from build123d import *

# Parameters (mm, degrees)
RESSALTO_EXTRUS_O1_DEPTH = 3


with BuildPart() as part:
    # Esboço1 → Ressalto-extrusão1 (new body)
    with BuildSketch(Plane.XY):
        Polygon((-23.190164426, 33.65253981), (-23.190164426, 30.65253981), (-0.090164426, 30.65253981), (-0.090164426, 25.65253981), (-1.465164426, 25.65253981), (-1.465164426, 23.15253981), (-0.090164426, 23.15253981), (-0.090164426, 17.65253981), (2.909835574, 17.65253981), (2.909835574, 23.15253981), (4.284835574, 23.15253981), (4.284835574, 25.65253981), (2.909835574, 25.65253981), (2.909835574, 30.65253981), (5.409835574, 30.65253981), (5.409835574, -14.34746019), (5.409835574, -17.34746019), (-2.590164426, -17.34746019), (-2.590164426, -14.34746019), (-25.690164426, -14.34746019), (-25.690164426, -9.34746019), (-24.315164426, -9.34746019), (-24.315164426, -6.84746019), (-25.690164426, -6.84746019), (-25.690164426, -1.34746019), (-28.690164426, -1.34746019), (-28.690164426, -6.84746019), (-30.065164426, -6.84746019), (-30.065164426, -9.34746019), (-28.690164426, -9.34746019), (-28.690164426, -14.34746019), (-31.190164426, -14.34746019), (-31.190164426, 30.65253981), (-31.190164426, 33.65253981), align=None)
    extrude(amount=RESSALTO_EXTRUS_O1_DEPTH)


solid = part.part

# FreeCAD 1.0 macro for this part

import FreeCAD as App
import Part
import Sketcher
from FreeCAD import Vector

doc = App.newDocument("Part")
body = doc.addObject("PartDesign::Body", "Body")

# Sketch on XY plane
sketch1 = doc.addObject("Sketcher::SketchObject", "Sketch")
body.addObject(sketch1)
sketch1.AttachmentSupport = (doc.XY_Plane, [""])
sketch1.MapMode = "FlatFace"
sketch1.addGeometry([
    Part.LineSegment(Vector(-23.190164, 30.65254, 0), Vector(-23.190164, 33.65254, 0)),  # 0
    Part.LineSegment(Vector(-23.190164, 33.65254, 0), Vector(-31.190164, 33.65254, 0)),  # 1
    Part.LineSegment(Vector(-31.190164, 33.65254, 0), Vector(-31.190164, -14.34746, 0)),  # 2
    Part.LineSegment(Vector(-31.190164, -14.34746, 0), Vector(-28.690164, -14.34746, 0)),  # 3
    Part.LineSegment(Vector(-28.690164, -14.34746, 0), Vector(-28.690164, -9.34746, 0)),  # 4
    Part.LineSegment(Vector(-28.690164, -9.34746, 0), Vector(-30.065164, -9.34746, 0)),  # 5
    Part.LineSegment(Vector(-30.065164, -9.34746, 0), Vector(-30.065164, -6.84746, 0)),  # 6
    Part.LineSegment(Vector(-30.065164, -6.84746, 0), Vector(-28.690164, -6.84746, 0)),  # 7
    Part.LineSegment(Vector(-28.690164, -6.84746, 0), Vector(-28.690164, -1.34746, 0)),  # 8
    Part.LineSegment(Vector(-28.690164, -1.34746, 0), Vector(-25.690164, -1.34746, 0)),  # 9
    Part.LineSegment(Vector(-25.690164, -1.34746, 0), Vector(-25.690164, -6.84746, 0)),  # 10
    Part.LineSegment(Vector(-25.690164, -6.84746, 0), Vector(-24.315164, -6.84746, 0)),  # 11
    Part.LineSegment(Vector(-24.315164, -6.84746, 0), Vector(-24.315164, -9.34746, 0)),  # 12
    Part.LineSegment(Vector(-24.315164, -9.34746, 0), Vector(-25.690164, -9.34746, 0)),  # 13
    Part.LineSegment(Vector(-25.690164, -9.34746, 0), Vector(-25.690164, -14.34746, 0)),  # 14
    Part.LineSegment(Vector(-25.690164, -14.34746, 0), Vector(-2.590164, -14.34746, 0)),  # 15
    Part.LineSegment(Vector(-2.590164, -14.34746, 0), Vector(-2.590164, -17.34746, 0)),  # 16
    Part.LineSegment(Vector(-2.590164, -17.34746, 0), Vector(5.409836, -17.34746, 0)),  # 17
    Part.LineSegment(Vector(5.409836, -17.34746, 0), Vector(5.409836, 30.65254, 0)),  # 18
    Part.LineSegment(Vector(5.409836, 30.65254, 0), Vector(2.909836, 30.65254, 0)),  # 19
    Part.LineSegment(Vector(2.909836, 30.65254, 0), Vector(2.909836, 25.65254, 0)),  # 20
    Part.LineSegment(Vector(2.909836, 25.65254, 0), Vector(4.284836, 25.65254, 0)),  # 21
    Part.LineSegment(Vector(4.284836, 25.65254, 0), Vector(4.284836, 23.15254, 0)),  # 22
    Part.LineSegment(Vector(4.284836, 23.15254, 0), Vector(2.909836, 23.15254, 0)),  # 23
    Part.LineSegment(Vector(2.909836, 23.15254, 0), Vector(2.909836, 17.65254, 0)),  # 24
    Part.LineSegment(Vector(2.909836, 17.65254, 0), Vector(-0.090164, 17.65254, 0)),  # 25
    Part.LineSegment(Vector(-0.090164, 17.65254, 0), Vector(-0.090164, 23.15254, 0)),  # 26
    Part.LineSegment(Vector(-0.090164, 23.15254, 0), Vector(-1.465164, 23.15254, 0)),  # 27
    Part.LineSegment(Vector(-1.465164, 23.15254, 0), Vector(-1.465164, 25.65254, 0)),  # 28
    Part.LineSegment(Vector(-1.465164, 25.65254, 0), Vector(-0.090164, 25.65254, 0)),  # 29
    Part.LineSegment(Vector(-0.090164, 25.65254, 0), Vector(-0.090164, 30.65254, 0)),  # 30
    Part.LineSegment(Vector(-0.090164, 30.65254, 0), Vector(-23.190164, 30.65254, 0)),  # 31
], False)
sketch1.addConstraint([
    Sketcher.Constraint("Coincident", 0, 2, 1, 1),
    Sketcher.Constraint("Coincident", 1, 2, 2, 1),
    Sketcher.Constraint("Coincident", 2, 2, 3, 1),
    Sketcher.Constraint("Coincident", 3, 2, 4, 1),
    Sketcher.Constraint("Coincident", 4, 2, 5, 1),
    Sketcher.Constraint("Coincident", 5, 2, 6, 1),
    Sketcher.Constraint("Coincident", 6, 2, 7, 1),
    Sketcher.Constraint("Coincident", 7, 2, 8, 1),
    Sketcher.Constraint("Coincident", 8, 2, 9, 1),
    Sketcher.Constraint("Coincident", 9, 2, 10, 1),
    Sketcher.Constraint("Coincident", 10, 2, 11, 1),
    Sketcher.Constraint("Coincident", 11, 2, 12, 1),
    Sketcher.Constraint("Coincident", 12, 2, 13, 1),
    Sketcher.Constraint("Coincident", 13, 2, 14, 1),
    Sketcher.Constraint("Coincident", 14, 2, 15, 1),
    Sketcher.Constraint("Coincident", 15, 2, 16, 1),
    Sketcher.Constraint("Coincident", 16, 2, 17, 1),
    Sketcher.Constraint("Coincident", 17, 2, 18, 1),
    Sketcher.Constraint("Coincident", 18, 2, 19, 1),
    Sketcher.Constraint("Coincident", 19, 2, 20, 1),
    Sketcher.Constraint("Coincident", 20, 2, 21, 1),
    Sketcher.Constraint("Coincident", 21, 2, 22, 1),
    Sketcher.Constraint("Coincident", 22, 2, 23, 1),
    Sketcher.Constraint("Coincident", 23, 2, 24, 1),
    Sketcher.Constraint("Coincident", 24, 2, 25, 1),
    Sketcher.Constraint("Coincident", 25, 2, 26, 1),
    Sketcher.Constraint("Coincident", 26, 2, 27, 1),
    Sketcher.Constraint("Coincident", 27, 2, 28, 1),
    Sketcher.Constraint("Coincident", 28, 2, 29, 1),
    Sketcher.Constraint("Coincident", 29, 2, 30, 1),
    Sketcher.Constraint("Coincident", 30, 2, 31, 1),
    Sketcher.Constraint("Coincident", 31, 2, 0, 1),
    Sketcher.Constraint("Vertical", 0),
    Sketcher.Constraint("Horizontal", 1),
    Sketcher.Constraint("Vertical", 2),
    Sketcher.Constraint("Horizontal", 3),
    Sketcher.Constraint("Vertical", 4),
    Sketcher.Constraint("Horizontal", 5),
    Sketcher.Constraint("Vertical", 6),
    Sketcher.Constraint("Horizontal", 7),
    Sketcher.Constraint("Vertical", 8),
    Sketcher.Constraint("Horizontal", 9),
    Sketcher.Constraint("Vertical", 10),
    Sketcher.Constraint("Horizontal", 11),
    Sketcher.Constraint("Vertical", 12),
    Sketcher.Constraint("Horizontal", 13),
    Sketcher.Constraint("Vertical", 14),
    Sketcher.Constraint("Horizontal", 15),
    Sketcher.Constraint("Vertical", 16),
    Sketcher.Constraint("Horizontal", 17),
    Sketcher.Constraint("Vertical", 18),
    Sketcher.Constraint("Horizontal", 19),
    Sketcher.Constraint("Vertical", 20),
    Sketcher.Constraint("Horizontal", 21),
    Sketcher.Constraint("Vertical", 22),
    Sketcher.Constraint("Horizontal", 23),
    Sketcher.Constraint("Vertical", 24),
    Sketcher.Constraint("Horizontal", 25),
    Sketcher.Constraint("Vertical", 26),
    Sketcher.Constraint("Horizontal", 27),
    Sketcher.Constraint("Vertical", 28),
    Sketcher.Constraint("Horizontal", 29),
    Sketcher.Constraint("Vertical", 30),
    Sketcher.Constraint("Horizontal", 31),
    Sketcher.Constraint("Horizontal", 7, 2, 10, 2),
    Sketcher.Constraint("Horizontal", 5, 2, 12, 2),
    Sketcher.Constraint("Horizontal", 3, 2, 14, 2),
    Sketcher.Constraint("Horizontal", 23, 2, 26, 2),
    Sketcher.Constraint("Horizontal", 21, 2, 28, 2),
    Sketcher.Constraint("Horizontal", 19, 2, 30, 2),
    Sketcher.Constraint("Vertical", 4, 2, 7, 2),
    Sketcher.Constraint("Vertical", 10, 2, 13, 2),
    Sketcher.Constraint("Vertical", 20, 2, 23, 2),
    Sketcher.Constraint("Vertical", 26, 2, 29, 2),
    Sketcher.Constraint("Equal", 7, 11),
    Sketcher.Constraint("Equal", 1, 17),
    Sketcher.Constraint("Equal", 3, 19),
    Sketcher.Constraint("Equal", 13, 21),
    Sketcher.Constraint("Equal", 9, 25),
    Sketcher.Constraint("Equal", 23, 27),
    Sketcher.Constraint("Equal", 25, 0),
    Sketcher.Constraint("Equal", 19, 6),
    Sketcher.Constraint("Equal", 0, 16),
    Sketcher.Constraint("Equal", 14, 20),
    Sketcher.Constraint("Equal", 12, 22),
    Sketcher.Constraint("Equal", 10, 24),
    Sketcher.Constraint("DistanceX", 1, 2, 1, 1, 8.0),
    Sketcher.Constraint("DistanceX", 9, 1, 9, 2, 3.0),
    Sketcher.Constraint("DistanceY", 2, 2, 2, 1, 48.0),
    Sketcher.Constraint("DistanceY", 4, 1, 4, 2, 5.0),
    Sketcher.Constraint("DistanceX", 3, 1, 3, 2, 2.5),
    Sketcher.Constraint("DistanceX", 15, 1, 15, 2, 23.1),
    Sketcher.Constraint("DistanceY", 8, 1, 8, 2, 5.5),
    Sketcher.Constraint("DistanceX", 5, 2, 5, 1, 1.375),
    Sketcher.Constraint("DistanceY", -1, 1, 0, 2, 33.65254),
    Sketcher.Constraint("DistanceX", 0, 2, -1, 1, 23.190164),
])
pad1 = doc.addObject("PartDesign::Pad", "Pad")
body.addObject(pad1)
pad1.Profile = sketch1
pad1.Length = 3

doc.recompute()
